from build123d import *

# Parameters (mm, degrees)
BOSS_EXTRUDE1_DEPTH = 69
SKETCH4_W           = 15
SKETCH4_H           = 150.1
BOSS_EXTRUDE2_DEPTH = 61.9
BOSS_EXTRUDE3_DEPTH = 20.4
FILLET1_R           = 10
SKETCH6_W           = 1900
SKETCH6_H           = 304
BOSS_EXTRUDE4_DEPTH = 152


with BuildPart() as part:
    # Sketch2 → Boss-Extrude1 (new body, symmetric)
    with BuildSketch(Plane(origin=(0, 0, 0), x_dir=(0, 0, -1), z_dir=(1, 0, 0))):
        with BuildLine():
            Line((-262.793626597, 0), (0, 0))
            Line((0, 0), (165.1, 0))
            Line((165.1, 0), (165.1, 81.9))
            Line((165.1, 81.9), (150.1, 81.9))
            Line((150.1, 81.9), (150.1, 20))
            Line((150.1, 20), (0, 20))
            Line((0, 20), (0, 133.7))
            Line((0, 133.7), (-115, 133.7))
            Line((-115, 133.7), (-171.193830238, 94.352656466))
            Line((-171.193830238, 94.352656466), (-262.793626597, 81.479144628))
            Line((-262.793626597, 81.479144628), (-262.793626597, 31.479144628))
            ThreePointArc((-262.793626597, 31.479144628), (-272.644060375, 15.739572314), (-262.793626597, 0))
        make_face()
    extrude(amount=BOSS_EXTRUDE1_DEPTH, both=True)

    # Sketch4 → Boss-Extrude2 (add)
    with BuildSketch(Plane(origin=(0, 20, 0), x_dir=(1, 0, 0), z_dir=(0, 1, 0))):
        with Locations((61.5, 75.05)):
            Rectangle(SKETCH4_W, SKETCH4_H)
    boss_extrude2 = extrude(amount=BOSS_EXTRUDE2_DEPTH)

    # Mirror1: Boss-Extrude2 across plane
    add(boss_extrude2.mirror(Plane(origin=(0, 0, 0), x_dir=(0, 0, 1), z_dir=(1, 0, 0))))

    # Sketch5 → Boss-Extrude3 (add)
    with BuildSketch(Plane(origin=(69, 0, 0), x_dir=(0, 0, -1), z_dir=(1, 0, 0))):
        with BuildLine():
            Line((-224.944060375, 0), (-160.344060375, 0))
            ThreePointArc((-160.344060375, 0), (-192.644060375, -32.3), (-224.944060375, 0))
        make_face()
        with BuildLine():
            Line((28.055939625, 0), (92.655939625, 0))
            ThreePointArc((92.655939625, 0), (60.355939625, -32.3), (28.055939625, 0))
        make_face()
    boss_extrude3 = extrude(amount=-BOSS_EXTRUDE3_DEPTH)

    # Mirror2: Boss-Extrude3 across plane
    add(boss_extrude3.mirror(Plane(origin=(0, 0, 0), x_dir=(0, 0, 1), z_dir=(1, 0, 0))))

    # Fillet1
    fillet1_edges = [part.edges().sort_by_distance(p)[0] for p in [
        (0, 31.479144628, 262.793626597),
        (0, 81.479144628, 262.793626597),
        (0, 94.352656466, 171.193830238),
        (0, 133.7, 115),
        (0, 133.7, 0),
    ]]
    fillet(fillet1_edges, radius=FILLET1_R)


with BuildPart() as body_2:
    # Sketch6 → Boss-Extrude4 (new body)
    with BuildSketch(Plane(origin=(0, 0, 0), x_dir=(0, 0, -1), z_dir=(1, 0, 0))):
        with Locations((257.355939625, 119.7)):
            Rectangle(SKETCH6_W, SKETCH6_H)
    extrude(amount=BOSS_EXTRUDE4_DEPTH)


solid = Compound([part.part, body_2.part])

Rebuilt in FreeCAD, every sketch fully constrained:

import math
import FreeCAD as App
import Part
import Sketcher
from FreeCAD import Vector
Q = App.Units.Quantity


def edges_at(feature, points):
    """Names of the edges that pass closest to the given points."""
    edges = feature.Shape.Edges
    near = lambda p: min(range(len(edges)), key=lambda i: edges[i].distToShape(Part.Vertex(*p))[0])
    return sorted({f"Edge{near(p) + 1}" for p in points})


def add_polygon(sketch, points):
    """Adds a closed chain of lines whose ends are joined by coincident constraints."""
    first, n = sketch.GeometryCount, len(points)
    for a, b in zip(points, points[1:] + points[:1]):
        sketch.addGeometry(Part.LineSegment(App.Vector(*a, 0), App.Vector(*b, 0)), False)
    for i in range(n):
        sketch.addConstraint(Sketcher.Constraint("Coincident", first + i, 2, first + (i + 1) % n, 1))

doc = App.newDocument("Part")
params = doc.addObject("Spreadsheet::Sheet", "Params")
for row, (alias, value) in enumerate([
    ("sketch1_radius", "17.5 mm"),
    ("sketch1_width", "50 mm"),
    ("sketch1_height", "15 mm"),
    ("sketch1_height2", "115 mm"),
    ("sketch1_width2", "81.9 mm"),
    ("pad1_length", "138 mm"),
    ("sketch2_width", "15 mm"),
    ("sketch2_height", "150.1 mm"),
    ("pad2_length", "61.9 mm"),
    ("sketch3_radius", "32.3 mm"),
    ("pad3_length", "20.4 mm"),
    ("fillet_radius", "10 mm"),
    ("sketch4_width", "304 mm"),
    ("sketch4_height", "1900 mm"),
    ("pad4_length", "152 mm"),
], start=1):
    params.set(f"A{row}", alias)
    params.set(f"B{row}", "=" + value)
    params.setAlias(f"B{row}", alias)

body = doc.addObject("PartDesign::Body", "Body")

# Sketch on YZ plane
sketch1 = body.newObject("Sketcher::SketchObject", "Sketch")
sketch1.AttachmentSupport = (doc.getObject("YZ_Plane"), [""])
sketch1.MapMode = "FlatFace"
sketch1.addGeometry(Part.LineSegment(Vector(0, 263, 0), Vector(0, -165, 0)), False)
sketch1.addGeometry(Part.LineSegment(Vector(0, -165, 0), Vector(82, -165, 0)), False)
sketch1.addGeometry(Part.LineSegment(Vector(82, -165, 0), Vector(82, -150, 0)), False)
sketch1.addGeometry(Part.LineSegment(Vector(82, -150, 0), Vector(20, -150, 0)), False)
sketch1.addGeometry(Part.LineSegment(Vector(20, -150, 0), Vector(20, 0, 0)), False)
sketch1.addGeometry(Part.LineSegment(Vector(20, 0, 0), Vector(134, 0, 0)), False)
sketch1.addGeometry(Part.LineSegment(Vector(134, 0, 0), Vector(134, 115, 0)), False)
sketch1.addGeometry(Part.LineSegment(Vector(134, 115, 0), Vector(94, 171, 0)), False)
sketch1.addGeometry(Part.LineSegment(Vector(94, 171, 0), Vector(81, 263, 0)), False)
sketch1.addGeometry(Part.LineSegment(Vector(81, 263, 0), Vector(31, 263, 0)), False)
sketch1.addGeometry(Part.ArcOfCircle(Part.Circle(Vector(16, 255, 0), Vector(0, 0, 1), 18), math.radians(26), math.radians(154)), False)
sketch1.addConstraint(Sketcher.Constraint("Coincident", 0, 2, 1, 1))
sketch1.addConstraint(Sketcher.Constraint("Coincident", 1, 2, 2, 1))
sketch1.addConstraint(Sketcher.Constraint("Coincident", 2, 2, 3, 1))
sketch1.addConstraint(Sketcher.Constraint("Coincident", 3, 2, 4, 1))
sketch1.addConstraint(Sketcher.Constraint("Coincident", 4, 2, 5, 1))
sketch1.addConstraint(Sketcher.Constraint("Coincident", 5, 2, 6, 1))
sketch1.addConstraint(Sketcher.Constraint("Coincident", 6, 2, 7, 1))
sketch1.addConstraint(Sketcher.Constraint("Coincident", 7, 2, 8, 1))
sketch1.addConstraint(Sketcher.Constraint("Coincident", 8, 2, 9, 1))
sketch1.addConstraint(Sketcher.Constraint("Coincident", 9, 2, 10, 1))
sketch1.addConstraint(Sketcher.Constraint("Coincident", 10, 2, 0, 1))
sketch1.addConstraint(Sketcher.Constraint("Vertical", 0))
sketch1.addConstraint(Sketcher.Constraint("Horizontal", 1))
sketch1.addConstraint(Sketcher.Constraint("Vertical", 2))
sketch1.addConstraint(Sketcher.Constraint("Horizontal", 3))
sketch1.addConstraint(Sketcher.Constraint("Vertical", 4))
sketch1.addConstraint(Sketcher.Constraint("Horizontal", 5))
sketch1.addConstraint(Sketcher.Constraint("Vertical", 6))
sketch1.addConstraint(Sketcher.Constraint("Horizontal", 9))
sketch1.addConstraint(Sketcher.Constraint("PointOnObject", 0, 2, -2))
sketch1.addConstraint(Sketcher.Constraint("PointOnObject", 4, 2, -1))
sketch1.addConstraint(Sketcher.Constraint("Horizontal", 9, 2, 10, 2))
sketch1.addConstraint(Sketcher.Constraint("Radius", 10, 17.5))
sketch1.addConstraint(Sketcher.Constraint("DistanceX", 9, 2, 9, 1, 50.0))
sketch1.addConstraint(Sketcher.Constraint("DistanceY", 2, 1, 2, 2, 15.0))
sketch1.addConstraint(Sketcher.Constraint("DistanceY", 6, 1, 6, 2, 115.0))
sketch1.addConstraint(Sketcher.Constraint("Angle", 7, Q("125 deg")))
sketch1.addConstraint(Sketcher.Constraint("Angle", 8, Q("98 deg")))
sketch1.addConstraint(Sketcher.Constraint("DistanceX", 1, 1, 1, 2, 81.9))
sketch1.addConstraint(Sketcher.Constraint("DistanceX", 3, 2, 3, 1, 61.9))
sketch1.addConstraint(Sketcher.Constraint("DistanceX", 5, 1, 5, 2, 113.7))
sketch1.addConstraint(Sketcher.Constraint("DistanceY", 4, 1, 4, 2, 150.1))
sketch1.addConstraint(Sketcher.Constraint("Distance", 7, 68.6))
sketch1.addConstraint(Sketcher.Constraint("Distance", 8, 92.5))
sketch1.setExpression("Constraints[22]", "Params.sketch1_radius")
sketch1.setExpression("Constraints[23]", "Params.sketch1_width")
sketch1.setExpression("Constraints[24]", "Params.sketch1_height")
sketch1.setExpression("Constraints[25]", "Params.sketch1_height2")
sketch1.setExpression("Constraints[28]", "Params.sketch1_width2")
pad1 = body.newObject("PartDesign::Pad", "Pad")
pad1.Profile = sketch1
pad1.setExpression("Length", "Params.pad1_length")
pad1.Midplane = True

# Sketch on XZ plane
sketch2 = body.newObject("Sketcher::SketchObject", "Sketch001")
sketch2.AttachmentSupport = (doc.getObject("XZ_Plane"), [""])
sketch2.MapMode = "FlatFace"
sketch2.AttachmentOffset = App.Placement(Vector(0, 0, -20), App.Rotation())
add_polygon(sketch2, [(54, -150), (54, 0), (69, 0), (69, -150)])  # lines 0-3
sketch2.addConstraint(Sketcher.Constraint("Vertical", 0))
sketch2.addConstraint(Sketcher.Constraint("Horizontal", 1))
sketch2.addConstraint(Sketcher.Constraint("Vertical", 2))
sketch2.addConstraint(Sketcher.Constraint("Horizontal", 3))
sketch2.addConstraint(Sketcher.Constraint("PointOnObject", 0, 2, -1))
sketch2.addConstraint(Sketcher.Constraint("DistanceX", 1, 1, 1, 2, 15.0))
sketch2.addConstraint(Sketcher.Constraint("DistanceY", 0, 1, 0, 2, 150.1))
sketch2.addConstraint(Sketcher.Constraint("DistanceX", -1, 1, 0, 2, 54.0))
sketch2.setExpression("Constraints[9]", "Params.sketch2_width")
sketch2.setExpression("Constraints[10]", "Params.sketch2_height")
pad2 = body.newObject("PartDesign::Pad", "Pad001")
pad2.Profile = sketch2
pad2.setExpression("Length", "Params.pad2_length")
pad2.Reversed = True
doc.recompute()

mirrored = body.newObject("PartDesign::Mirrored", "Mirrored")
mirrored.Originals = [pad2]
mirrored.MirrorPlane = (doc.getObject("YZ_Plane"), [""])
body.Tip = mirrored

# Sketch on YZ plane
sketch3 = body.newObject("Sketcher::SketchObject", "Sketch002")
sketch3.AttachmentSupport = (doc.getObject("YZ_Plane"), [""])
sketch3.MapMode = "FlatFace"
sketch3.AttachmentOffset = App.Placement(Vector(0, 0, 69), App.Rotation())
sketch3.addGeometry(Part.LineSegment(Vector(0, 160, 0), Vector(0, 225, 0)), False)
sketch3.addGeometry(Part.ArcOfCircle(Part.Circle(Vector(0, 193, 0), Vector(0, 0, 1), 32), math.radians(90), math.radians(270)), False)
sketch3.addGeometry(Part.LineSegment(Vector(0, -93, 0), Vector(0, -28, 0)), False)
sketch3.addGeometry(Part.ArcOfCircle(Part.Circle(Vector(0, -60, 0), Vector(0, 0, 1), 32), math.radians(90), math.radians(270)), False)
sketch3.addConstraint(Sketcher.Constraint("Coincident", 0, 1, 1, 2))
sketch3.addConstraint(Sketcher.Constraint("Coincident", 1, 1, 0, 2))
sketch3.addConstraint(Sketcher.Constraint("Coincident", 2, 1, 3, 2))
sketch3.addConstraint(Sketcher.Constraint("Coincident", 3, 1, 2, 2))
sketch3.addConstraint(Sketcher.Constraint("Vertical", 0))
sketch3.addConstraint(Sketcher.Constraint("Vertical", 2))
sketch3.addConstraint(Sketcher.Constraint("Equal", 1, 3))
sketch3.addConstraint(Sketcher.Constraint("PointOnObject", 1, 3, -2))
sketch3.addConstraint(Sketcher.Constraint("PointOnObject", 3, 3, -2))
sketch3.addConstraint(Sketcher.Constraint("PointOnObject", 0, 1, -2))
sketch3.addConstraint(Sketcher.Constraint("PointOnObject", 2, 1, -2))
sketch3.addConstraint(Sketcher.Constraint("Radius", 1, 32.3))
sketch3.addConstraint(Sketcher.Constraint("DistanceY", 3, 3, 1, 3, 253.0))
sketch3.addConstraint(Sketcher.Constraint("DistanceY", -1, 1, 1, 3, 192.64406))
sketch3.setExpression("Constraints[11]", "Params.sketch3_radius")
pad3 = body.newObject("PartDesign::Pad", "Pad002")
pad3.Profile = sketch3
pad3.setExpression("Length", "Params.pad3_length")
pad3.Reversed = True
doc.recompute()

mirrored2 = body.newObject("PartDesign::Mirrored", "Mirrored001")
mirrored2.Originals = [pad3]
mirrored2.MirrorPlane = (doc.getObject("YZ_Plane"), [""])
body.Tip = mirrored2
doc.recompute()

fillet = body.newObject("PartDesign::Fillet", "Fillet")
fillet.Base = (mirrored2, edges_at(mirrored2, [
    (0, 31.479, 262.794),
    (0, 81.479, 262.794),
    (0, 94.353, 171.194),
    (0, 133.7, 115),
    (0, 133.7, 0),
]))
fillet.setExpression("Radius", "Params.fillet_radius")
body2 = doc.addObject("PartDesign::Body", "Body001")

# Sketch on YZ plane
sketch4 = body2.newObject("Sketcher::SketchObject", "Sketch003")
sketch4.AttachmentSupport = (doc.getObject("YZ_Plane001"), [""])
sketch4.MapMode = "FlatFace"
add_polygon(sketch4, [(272, 693), (-32, 693), (-32, -1207), (272, -1207)])  # lines 0-3
sketch4.addConstraint(Sketcher.Constraint("Horizontal", 0))
sketch4.addConstraint(Sketcher.Constraint("Vertical", 1))
sketch4.addConstraint(Sketcher.Constraint("Horizontal", 2))
sketch4.addConstraint(Sketcher.Constraint("Vertical", 3))
sketch4.addConstraint(Sketcher.Constraint("DistanceX", 0, 2, 0, 1, 304.0))
sketch4.addConstraint(Sketcher.Constraint("DistanceY", 1, 2, 1, 1, 1900.0))
sketch4.addConstraint(Sketcher.Constraint("DistanceX", 0, 2, -1, 1, 32.3))
sketch4.addConstraint(Sketcher.Constraint("DistanceY", -1, 1, 0, 2, 692.64406))
sketch4.setExpression("Constraints[8]", "Params.sketch4_width")
sketch4.setExpression("Constraints[9]", "Params.sketch4_height")
pad4 = body2.newObject("PartDesign::Pad", "Pad003")
pad4.Profile = sketch4
pad4.setExpression("Length", "Params.pad4_length")

doc.recompute()
